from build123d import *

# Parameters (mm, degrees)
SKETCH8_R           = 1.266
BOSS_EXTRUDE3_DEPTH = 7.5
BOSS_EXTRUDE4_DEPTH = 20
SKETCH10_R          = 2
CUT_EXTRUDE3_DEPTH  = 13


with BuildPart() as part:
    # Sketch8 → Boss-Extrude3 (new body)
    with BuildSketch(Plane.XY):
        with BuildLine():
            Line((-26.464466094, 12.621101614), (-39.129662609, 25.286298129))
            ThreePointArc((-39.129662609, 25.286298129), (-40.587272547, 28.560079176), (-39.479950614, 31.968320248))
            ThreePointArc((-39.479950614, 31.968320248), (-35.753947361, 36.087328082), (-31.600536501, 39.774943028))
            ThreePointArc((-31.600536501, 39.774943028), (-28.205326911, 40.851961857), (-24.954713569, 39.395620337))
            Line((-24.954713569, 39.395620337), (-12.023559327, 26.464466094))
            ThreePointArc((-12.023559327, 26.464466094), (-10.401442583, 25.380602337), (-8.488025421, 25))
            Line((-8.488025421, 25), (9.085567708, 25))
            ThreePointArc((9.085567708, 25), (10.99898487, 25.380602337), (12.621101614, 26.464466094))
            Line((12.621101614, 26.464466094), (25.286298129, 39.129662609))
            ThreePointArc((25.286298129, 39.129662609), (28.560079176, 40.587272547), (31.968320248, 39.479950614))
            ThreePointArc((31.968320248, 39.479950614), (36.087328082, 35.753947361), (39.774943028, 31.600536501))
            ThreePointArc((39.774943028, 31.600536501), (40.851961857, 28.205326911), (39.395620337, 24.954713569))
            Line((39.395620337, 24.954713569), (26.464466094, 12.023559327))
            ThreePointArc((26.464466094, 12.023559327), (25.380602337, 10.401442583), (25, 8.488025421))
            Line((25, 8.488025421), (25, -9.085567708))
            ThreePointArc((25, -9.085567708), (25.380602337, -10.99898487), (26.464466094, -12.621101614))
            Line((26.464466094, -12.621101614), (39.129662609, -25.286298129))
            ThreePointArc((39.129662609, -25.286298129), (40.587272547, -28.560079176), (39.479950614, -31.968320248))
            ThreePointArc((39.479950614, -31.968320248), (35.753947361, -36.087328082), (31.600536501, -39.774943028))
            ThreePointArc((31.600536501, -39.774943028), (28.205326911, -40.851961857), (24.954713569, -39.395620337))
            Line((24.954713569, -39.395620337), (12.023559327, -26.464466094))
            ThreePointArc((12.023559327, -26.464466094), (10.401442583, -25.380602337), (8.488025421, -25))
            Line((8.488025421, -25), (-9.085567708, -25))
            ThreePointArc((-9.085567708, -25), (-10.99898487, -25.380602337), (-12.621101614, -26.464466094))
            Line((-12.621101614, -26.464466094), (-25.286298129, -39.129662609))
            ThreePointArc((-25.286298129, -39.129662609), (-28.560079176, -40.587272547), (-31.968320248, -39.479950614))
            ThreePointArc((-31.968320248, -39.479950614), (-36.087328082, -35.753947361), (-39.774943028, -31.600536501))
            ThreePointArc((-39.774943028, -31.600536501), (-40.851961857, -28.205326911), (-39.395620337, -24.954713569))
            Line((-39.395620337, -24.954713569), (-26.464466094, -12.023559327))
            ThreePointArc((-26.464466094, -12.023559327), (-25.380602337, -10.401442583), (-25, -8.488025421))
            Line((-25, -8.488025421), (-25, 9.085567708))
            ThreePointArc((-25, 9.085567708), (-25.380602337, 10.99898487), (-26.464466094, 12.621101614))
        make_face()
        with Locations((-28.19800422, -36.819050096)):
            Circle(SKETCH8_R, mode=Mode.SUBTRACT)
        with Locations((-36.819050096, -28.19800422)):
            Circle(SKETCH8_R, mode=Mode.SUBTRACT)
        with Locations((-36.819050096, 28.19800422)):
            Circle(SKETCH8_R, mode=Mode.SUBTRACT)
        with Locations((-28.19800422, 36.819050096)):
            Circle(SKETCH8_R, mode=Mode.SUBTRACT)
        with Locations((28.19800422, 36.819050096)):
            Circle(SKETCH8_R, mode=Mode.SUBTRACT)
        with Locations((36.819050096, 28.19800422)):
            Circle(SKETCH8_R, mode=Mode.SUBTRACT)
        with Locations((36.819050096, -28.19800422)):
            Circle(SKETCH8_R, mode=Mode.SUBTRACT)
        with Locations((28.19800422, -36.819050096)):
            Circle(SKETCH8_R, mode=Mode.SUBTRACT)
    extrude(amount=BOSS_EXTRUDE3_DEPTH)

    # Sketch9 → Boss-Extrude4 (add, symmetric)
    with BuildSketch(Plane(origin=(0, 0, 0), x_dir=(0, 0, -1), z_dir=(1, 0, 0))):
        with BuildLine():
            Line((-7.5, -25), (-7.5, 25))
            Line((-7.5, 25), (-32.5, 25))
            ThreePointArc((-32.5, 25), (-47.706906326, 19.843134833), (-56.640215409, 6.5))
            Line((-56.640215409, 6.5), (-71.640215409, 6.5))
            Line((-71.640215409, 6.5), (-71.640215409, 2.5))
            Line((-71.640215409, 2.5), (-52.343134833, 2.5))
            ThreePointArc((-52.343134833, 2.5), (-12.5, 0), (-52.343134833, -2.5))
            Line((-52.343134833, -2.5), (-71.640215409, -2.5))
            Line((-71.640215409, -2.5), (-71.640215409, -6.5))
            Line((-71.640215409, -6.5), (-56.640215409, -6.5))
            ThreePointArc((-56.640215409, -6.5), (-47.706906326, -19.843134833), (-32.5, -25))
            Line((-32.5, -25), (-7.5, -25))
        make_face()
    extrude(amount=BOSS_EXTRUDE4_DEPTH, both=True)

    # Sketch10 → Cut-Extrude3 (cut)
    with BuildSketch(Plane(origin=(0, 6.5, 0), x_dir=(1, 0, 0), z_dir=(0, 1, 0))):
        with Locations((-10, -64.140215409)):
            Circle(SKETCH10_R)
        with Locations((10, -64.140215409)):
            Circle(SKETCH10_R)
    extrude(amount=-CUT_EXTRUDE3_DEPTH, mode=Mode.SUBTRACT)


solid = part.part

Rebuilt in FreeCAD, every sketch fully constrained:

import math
import FreeCAD as App
import Part
import Sketcher

doc = App.newDocument("Part")
body = doc.addObject("PartDesign::Body", "Body")

# Sketch on XY plane
sketch1 = body.newObject("Sketcher::SketchObject", "Sketch")
sketch1.AttachmentSupport = (doc.getObject("XY_Plane"), [""])
sketch1.MapMode = "FlatFace"
sketch1.addGeometry([
    Part.LineSegment(App.Vector(-39.1, 25.3, 0), App.Vector(-26.5, 12.6, 0)),  # 0
    Part.ArcOfCircle(Part.Circle(App.Vector(-30, 9.1, 0), App.Vector(0, 0, 1), 5), math.radians(0), math.radians(45)),  # 1
    Part.LineSegment(App.Vector(-25, 9.1, 0), App.Vector(-25, -8.5, 0)),  # 2
    Part.ArcOfCircle(Part.Circle(App.Vector(-30, -8.5, 0), App.Vector(0, 0, 1), 5), math.radians(-45), math.radians(0)),  # 3
    Part.LineSegment(App.Vector(-26.5, -12, 0), App.Vector(-39.4, -25, 0)),  # 4
    Part.ArcOfCircle(Part.Circle(App.Vector(-35.9, -28.5, 0), App.Vector(0, 0, 1), 5), math.radians(135), math.radians(218)),  # 5
    Part.ArcOfCircle(Part.Circle(App.Vector(0, 0, 0), App.Vector(0, 0, 1), 50.8), math.radians(-141.53), math.radians(-129)),  # 6
    Part.ArcOfCircle(Part.Circle(App.Vector(-28.8, -35.6, 0), App.Vector(0, 0, 1), 5), math.radians(-129), math.radians(-45)),  # 7
    Part.LineSegment(App.Vector(-25.3, -39.1, 0), App.Vector(-12.6, -26.5, 0)),  # 8
    Part.ArcOfCircle(Part.Circle(App.Vector(-9.1, -30, 0), App.Vector(0, 0, 1), 5), math.radians(90), math.radians(135)),  # 9
    Part.LineSegment(App.Vector(-9.1, -25, 0), App.Vector(8.5, -25, 0)),  # 10
    Part.ArcOfCircle(Part.Circle(App.Vector(8.5, -30, 0), App.Vector(0, 0, 1), 5), math.radians(45), math.radians(90)),  # 11
    Part.LineSegment(App.Vector(12, -26.5, 0), App.Vector(25, -39.4, 0)),  # 12
    Part.ArcOfCircle(Part.Circle(App.Vector(28.5, -35.9, 0), App.Vector(0, 0, 1), 5), math.radians(-135), math.radians(-52)),  # 13
    Part.ArcOfCircle(Part.Circle(App.Vector(0, 0, 0), App.Vector(0, 0, 1), 50.8), math.radians(-51.53), math.radians(-39)),  # 14
    Part.ArcOfCircle(Part.Circle(App.Vector(35.6, -28.8, 0), App.Vector(0, 0, 1), 5), math.radians(-39), math.radians(45)),  # 15
    Part.LineSegment(App.Vector(39.1, -25.3, 0), App.Vector(26.5, -12.6, 0)),  # 16
    Part.ArcOfCircle(Part.Circle(App.Vector(30, -9.1, 0), App.Vector(0, 0, 1), 5), math.radians(180), math.radians(225)),  # 17
    Part.LineSegment(App.Vector(25, -9.1, 0), App.Vector(25, 8.5, 0)),  # 18
    Part.ArcOfCircle(Part.Circle(App.Vector(30, 8.5, 0), App.Vector(0, 0, 1), 5), math.radians(135), math.radians(180)),  # 19
    Part.LineSegment(App.Vector(26.5, 12, 0), App.Vector(39.4, 25, 0)),  # 20
    Part.ArcOfCircle(Part.Circle(App.Vector(35.9, 28.5, 0), App.Vector(0, 0, 1), 5), math.radians(-45), math.radians(38)),  # 21
    Part.ArcOfCircle(Part.Circle(App.Vector(0, 0, 0), App.Vector(0, 0, 1), 50.8), math.radians(38.47), math.radians(51)),  # 22
    Part.ArcOfCircle(Part.Circle(App.Vector(28.8, 35.6, 0), App.Vector(0, 0, 1), 5), math.radians(51), math.radians(135)),  # 23
    Part.LineSegment(App.Vector(25.3, 39.1, 0), App.Vector(12.6, 26.5, 0)),  # 24
    Part.ArcOfCircle(Part.Circle(App.Vector(9.1, 30, 0), App.Vector(0, 0, 1), 5), math.radians(-90), math.radians(-45)),  # 25
    Part.LineSegment(App.Vector(9.1, 25, 0), App.Vector(-8.5, 25, 0)),  # 26
    Part.ArcOfCircle(Part.Circle(App.Vector(-8.5, 30, 0), App.Vector(0, 0, 1), 5), math.radians(-135), math.radians(-90)),  # 27
    Part.LineSegment(App.Vector(-12, 26.5, 0), App.Vector(-25, 39.4, 0)),  # 28
    Part.ArcOfCircle(Part.Circle(App.Vector(-28.5, 35.9, 0), App.Vector(0, 0, 1), 5), math.radians(45), math.radians(128)),  # 29
    Part.ArcOfCircle(Part.Circle(App.Vector(0, 0, 0), App.Vector(0, 0, 1), 50.8), math.radians(128.47), math.radians(141)),  # 30
    Part.ArcOfCircle(Part.Circle(App.Vector(-35.6, 28.8, 0), App.Vector(0, 0, 1), 5), math.radians(141), math.radians(225)),  # 31
    Part.Circle(App.Vector(28.2, -36.8, 0), App.Vector(0, 0, 1), 1.3),  # 32
    Part.Circle(App.Vector(36.8, -28.2, 0), App.Vector(0, 0, 1), 1.3),  # 33
    Part.Circle(App.Vector(-28.2, -36.8, 0), App.Vector(0, 0, 1), 1.3),  # 34
    Part.Circle(App.Vector(-36.8, -28.2, 0), App.Vector(0, 0, 1), 1.3),  # 35
    Part.Circle(App.Vector(36.8, 28.2, 0), App.Vector(0, 0, 1), 1.3),  # 36
    Part.Circle(App.Vector(28.2, 36.8, 0), App.Vector(0, 0, 1), 1.3),  # 37
    Part.Circle(App.Vector(-36.8, 28.2, 0), App.Vector(0, 0, 1), 1.3),  # 38
    Part.Circle(App.Vector(-28.2, 36.8, 0), App.Vector(0, 0, 1), 1.3),  # 39
], False)
sketch1.addConstraint([
    Sketcher.Constraint("Tangent", 0, 2, 1, 2),
    Sketcher.Constraint("Tangent", 1, 1, 2, 1),
    Sketcher.Constraint("Tangent", 2, 2, 3, 2),
    Sketcher.Constraint("Tangent", 3, 1, 4, 1),
    Sketcher.Constraint("Tangent", 4, 2, 5, 1),
    Sketcher.Constraint("Tangent", 5, 2, 6, 1),
    Sketcher.Constraint("Tangent", 6, 2, 7, 1),
    Sketcher.Constraint("Tangent", 7, 2, 8, 1),
    Sketcher.Constraint("Tangent", 8, 2, 9, 2),
    Sketcher.Constraint("Tangent", 9, 1, 10, 1),
    Sketcher.Constraint("Tangent", 10, 2, 11, 2),
    Sketcher.Constraint("Tangent", 11, 1, 12, 1),
    Sketcher.Constraint("Tangent", 12, 2, 13, 1),
    Sketcher.Constraint("Tangent", 13, 2, 14, 1),
    Sketcher.Constraint("Tangent", 14, 2, 15, 1),
    Sketcher.Constraint("Tangent", 15, 2, 16, 1),
    Sketcher.Constraint("Tangent", 16, 2, 17, 2),
    Sketcher.Constraint("Tangent", 17, 1, 18, 1),
    Sketcher.Constraint("Tangent", 18, 2, 19, 2),
    Sketcher.Constraint("Tangent", 19, 1, 20, 1),
    Sketcher.Constraint("Tangent", 20, 2, 21, 1),
    Sketcher.Constraint("Tangent", 21, 2, 22, 1),
    Sketcher.Constraint("Tangent", 22, 2, 23, 1),
    Sketcher.Constraint("Tangent", 23, 2, 24, 1),
    Sketcher.Constraint("Tangent", 24, 2, 25, 2),
    Sketcher.Constraint("Tangent", 25, 1, 26, 1),
    Sketcher.Constraint("Tangent", 26, 2, 27, 2),
    Sketcher.Constraint("Tangent", 27, 1, 28, 1),
    Sketcher.Constraint("Tangent", 28, 2, 29, 1),
    Sketcher.Constraint("Tangent", 29, 2, 30, 1),
    Sketcher.Constraint("Tangent", 30, 2, 31, 1),
    Sketcher.Constraint("Tangent", 31, 2, 0, 1),
    Sketcher.Constraint("Vertical", 2),
    Sketcher.Constraint("Horizontal", 10),
    Sketcher.Constraint("Vertical", 18),
    Sketcher.Constraint("Horizontal", 26),
    Sketcher.Constraint("Coincident", 6, 3, -1, 1),
    Sketcher.Constraint("Coincident", 14, 3, -1, 1),
    Sketcher.Constraint("Coincident", 22, 3, -1, 1),
    Sketcher.Constraint("Coincident", 30, 3, -1, 1),
    Sketcher.Constraint("Equal", 1, 3),
    Sketcher.Constraint("Equal", 3, 5),
    Sketcher.Constraint("Equal", 5, 7),
    Sketcher.Constraint("Equal", 7, 9),
    Sketcher.Constraint("Equal", 9, 11),
    Sketcher.Constraint("Equal", 11, 13),
    Sketcher.Constraint("Equal", 6, 14),
    Sketcher.Constraint("Equal", 13, 15),
    Sketcher.Constraint("Equal", 15, 17),
    Sketcher.Constraint("Equal", 17, 19),
    Sketcher.Constraint("Equal", 19, 21),
    Sketcher.Constraint("Equal", 14, 22),
    Sketcher.Constraint("Equal", 21, 23),
    Sketcher.Constraint("Equal", 23, 25),
    Sketcher.Constraint("Equal", 25, 27),
    Sketcher.Constraint("Equal", 27, 29),
    Sketcher.Constraint("Equal", 22, 30),
    Sketcher.Constraint("Equal", 29, 31),
    Sketcher.Constraint("Equal", 32, 33),
    Sketcher.Constraint("Equal", 33, 34),
    Sketcher.Constraint("Equal", 34, 35),
    Sketcher.Constraint("Equal", 35, 36),
    Sketcher.Constraint("Equal", 36, 37),
    Sketcher.Constraint("Equal", 37, 38),
    Sketcher.Constraint("Equal", 38, 39),
    Sketcher.Constraint("Symmetric", 1, 3, 17, 3, -1, 1),
    Sketcher.Constraint("Symmetric", 9, 3, 25, 3, -1, 1),
    Sketcher.Constraint("Symmetric", 35, 3, 36, 3, -1, 1),
    Sketcher.Constraint("Symmetric", 34, 3, 37, 3, -1, 1),
    Sketcher.Constraint("Symmetric", 33, 3, 38, 3, -1, 1),
    Sketcher.Constraint("Symmetric", 32, 3, 39, 3, -1, 1),
    Sketcher.Constraint("Symmetric", 3, 1, 19, 1, -1, 1),
    Sketcher.Constraint("Symmetric", 11, 1, 27, 1, -1, 1),
    Sketcher.Constraint("Symmetric", 32, 3, 34, 3, -2),
    Sketcher.Constraint("Symmetric", 33, 3, 35, 3, -2),
    Sketcher.Constraint("Perpendicular", 0, 4),
    Sketcher.Constraint("Parallel", 4, 8),
    Sketcher.Constraint("Perpendicular", 8, 12),
    Sketcher.Constraint("Parallel", 12, 16),
    Sketcher.Constraint("Parallel", 20, 24),
    Sketcher.Constraint("Horizontal", 8, 2, 11, 1),
    Sketcher.Constraint("Equal", 26, 2),
    Sketcher.Constraint("Equal", 0, 8),
    Sketcher.Constraint("Equal", 4, 12),
    Sketcher.Constraint("Radius", 1, 5.0),
    Sketcher.Constraint("Radius", 6, 50.8),
    Sketcher.Constraint("Diameter", 32, 2.532),
    Sketcher.Constraint("DistanceX", 1, 3, -1, 1, 30.0),
    Sketcher.Constraint("DistanceY", -1, 1, 0, 2, 12.621102),
    Sketcher.Constraint("DistanceY", 6, 2, 34, 3, 2.660901),
    Sketcher.Constraint("DistanceX", 33, 3, 14, 2, 2.660901),
    Sketcher.Constraint("DistanceX", 10, 1, 10, 2, 17.573593),
    Sketcher.Constraint("DistanceX", 11, 3, 32, 3, 19.709979),
    Sketcher.Constraint("DistanceY", 35, 3, 3, 3, 19.709979),
])
pad1 = body.newObject("PartDesign::Pad", "Pad")
pad1.Profile = sketch1
pad1.Length = 7.5

# Sketch on YZ plane
sketch2 = body.newObject("Sketcher::SketchObject", "Sketch001")
sketch2.AttachmentSupport = (doc.getObject("YZ_Plane"), [""])
sketch2.MapMode = "FlatFace"
sketch2.addGeometry([
    Part.LineSegment(App.Vector(-25, 7.5, 0), App.Vector(25, 7.5, 0)),  # 0
    Part.LineSegment(App.Vector(25, 7.5, 0), App.Vector(25, 32.5, 0)),  # 1
    Part.ArcOfCircle(Part.Circle(App.Vector(0, 32.5, 0), App.Vector(0, 0, 1), 25), math.radians(0), math.radians(75)),  # 2
    Part.LineSegment(App.Vector(6.5, 56.6, 0), App.Vector(6.5, 71.6, 0)),  # 3
    Part.LineSegment(App.Vector(6.5, 71.6, 0), App.Vector(2.5, 71.6, 0)),  # 4
    Part.LineSegment(App.Vector(2.5, 71.6, 0), App.Vector(2.5, 52.3, 0)),  # 5
    Part.ArcOfCircle(Part.Circle(App.Vector(0, 32.5, 0), App.Vector(0, 0, 1), 20), math.radians(97), math.radians(443)),  # 6
    Part.LineSegment(App.Vector(-2.5, 52.3, 0), App.Vector(-2.5, 71.6, 0)),  # 7
    Part.LineSegment(App.Vector(-2.5, 71.6, 0), App.Vector(-6.5, 71.6, 0)),  # 8
    Part.LineSegment(App.Vector(-6.5, 71.6, 0), App.Vector(-6.5, 56.6, 0)),  # 9
    Part.ArcOfCircle(Part.Circle(App.Vector(0, 32.5, 0), App.Vector(0, 0, 1), 25), math.radians(105), math.radians(180)),  # 10
    Part.LineSegment(App.Vector(-25, 32.5, 0), App.Vector(-25, 7.5, 0)),  # 11
], False)
sketch2.addConstraint([
    Sketcher.Constraint("Coincident", 0, 2, 1, 1),
    Sketcher.Constraint("Tangent", 1, 2, 2, 1),
    Sketcher.Constraint("Coincident", 2, 2, 3, 1),
    Sketcher.Constraint("Coincident", 3, 2, 4, 1),
    Sketcher.Constraint("Coincident", 4, 2, 5, 1),
    Sketcher.Constraint("Coincident", 5, 2, 6, 2),
    Sketcher.Constraint("Coincident", 6, 1, 7, 1),
    Sketcher.Constraint("Coincident", 7, 2, 8, 1),
    Sketcher.Constraint("Coincident", 8, 2, 9, 1),
    Sketcher.Constraint("Coincident", 9, 2, 10, 1),
    Sketcher.Constraint("Tangent", 10, 2, 11, 1),
    Sketcher.Constraint("Coincident", 11, 2, 0, 1),
    Sketcher.Constraint("Horizontal", 0),
    Sketcher.Constraint("Vertical", 1),
    Sketcher.Constraint("Vertical", 3),
    Sketcher.Constraint("Horizontal", 4),
    Sketcher.Constraint("Vertical", 5),
    Sketcher.Constraint("Vertical", 7),
    Sketcher.Constraint("Horizontal", 8),
    Sketcher.Constraint("Vertical", 9),
    Sketcher.Constraint("Vertical", 11),
    Sketcher.Constraint("Coincident", 6, 3, 2, 3),
    Sketcher.Constraint("Coincident", 10, 3, 2, 3),
    Sketcher.Constraint("Equal", 2, 10),
    Sketcher.Constraint("Symmetric", 5, 2, 6, 1, -2),
    Sketcher.Constraint("Symmetric", 3, 2, 8, 2, -2),
    Sketcher.Constraint("Radius", 2, 25.0),
    Sketcher.Constraint("Radius", 6, 20.0),
    Sketcher.Constraint("DistanceX", 4, 2, 4, 1, 4.0),
    Sketcher.Constraint("DistanceY", 1, 1, 1, 2, 25.0),
    Sketcher.Constraint("DistanceY", 3, 1, 3, 2, 15.0),
    Sketcher.Constraint("DistanceX", 6, 1, 5, 2, 5.0),
    Sketcher.Constraint("DistanceY", -1, 1, 2, 3, 32.5),
])
pad2 = body.newObject("PartDesign::Pad", "Pad001")
pad2.Profile = sketch2
pad2.Length = 40
pad2.Midplane = True

# Sketch on XZ plane
sketch3 = body.newObject("Sketcher::SketchObject", "Sketch002")
sketch3.AttachmentSupport = (doc.getObject("XZ_Plane"), [""])
sketch3.MapMode = "FlatFace"
sketch3.AttachmentOffset = App.Placement(App.Vector(0, 0, -6.5), App.Rotation())
sketch3.addGeometry([
    Part.Circle(App.Vector(-10, 64.1, 0), App.Vector(0, 0, 1), 2),
    Part.Circle(App.Vector(10, 64.1, 0), App.Vector(0, 0, 1), 2),
], False)
sketch3.addConstraint([
    Sketcher.Constraint("Equal", 0, 1),
    Sketcher.Constraint("Symmetric", 0, 3, 1, 3, -2),
    Sketcher.Constraint("Diameter", 0, 4.0),
    Sketcher.Constraint("DistanceX", 0, 3, -1, 1, 10.0),
    Sketcher.Constraint("DistanceY", -1, 1, 0, 3, 64.140215),
])
pocket1 = body.newObject("PartDesign::Pocket", "Pocket")
pocket1.Profile = sketch3
pocket1.Length = 13
pocket1.Reversed = True

doc.recompute()
